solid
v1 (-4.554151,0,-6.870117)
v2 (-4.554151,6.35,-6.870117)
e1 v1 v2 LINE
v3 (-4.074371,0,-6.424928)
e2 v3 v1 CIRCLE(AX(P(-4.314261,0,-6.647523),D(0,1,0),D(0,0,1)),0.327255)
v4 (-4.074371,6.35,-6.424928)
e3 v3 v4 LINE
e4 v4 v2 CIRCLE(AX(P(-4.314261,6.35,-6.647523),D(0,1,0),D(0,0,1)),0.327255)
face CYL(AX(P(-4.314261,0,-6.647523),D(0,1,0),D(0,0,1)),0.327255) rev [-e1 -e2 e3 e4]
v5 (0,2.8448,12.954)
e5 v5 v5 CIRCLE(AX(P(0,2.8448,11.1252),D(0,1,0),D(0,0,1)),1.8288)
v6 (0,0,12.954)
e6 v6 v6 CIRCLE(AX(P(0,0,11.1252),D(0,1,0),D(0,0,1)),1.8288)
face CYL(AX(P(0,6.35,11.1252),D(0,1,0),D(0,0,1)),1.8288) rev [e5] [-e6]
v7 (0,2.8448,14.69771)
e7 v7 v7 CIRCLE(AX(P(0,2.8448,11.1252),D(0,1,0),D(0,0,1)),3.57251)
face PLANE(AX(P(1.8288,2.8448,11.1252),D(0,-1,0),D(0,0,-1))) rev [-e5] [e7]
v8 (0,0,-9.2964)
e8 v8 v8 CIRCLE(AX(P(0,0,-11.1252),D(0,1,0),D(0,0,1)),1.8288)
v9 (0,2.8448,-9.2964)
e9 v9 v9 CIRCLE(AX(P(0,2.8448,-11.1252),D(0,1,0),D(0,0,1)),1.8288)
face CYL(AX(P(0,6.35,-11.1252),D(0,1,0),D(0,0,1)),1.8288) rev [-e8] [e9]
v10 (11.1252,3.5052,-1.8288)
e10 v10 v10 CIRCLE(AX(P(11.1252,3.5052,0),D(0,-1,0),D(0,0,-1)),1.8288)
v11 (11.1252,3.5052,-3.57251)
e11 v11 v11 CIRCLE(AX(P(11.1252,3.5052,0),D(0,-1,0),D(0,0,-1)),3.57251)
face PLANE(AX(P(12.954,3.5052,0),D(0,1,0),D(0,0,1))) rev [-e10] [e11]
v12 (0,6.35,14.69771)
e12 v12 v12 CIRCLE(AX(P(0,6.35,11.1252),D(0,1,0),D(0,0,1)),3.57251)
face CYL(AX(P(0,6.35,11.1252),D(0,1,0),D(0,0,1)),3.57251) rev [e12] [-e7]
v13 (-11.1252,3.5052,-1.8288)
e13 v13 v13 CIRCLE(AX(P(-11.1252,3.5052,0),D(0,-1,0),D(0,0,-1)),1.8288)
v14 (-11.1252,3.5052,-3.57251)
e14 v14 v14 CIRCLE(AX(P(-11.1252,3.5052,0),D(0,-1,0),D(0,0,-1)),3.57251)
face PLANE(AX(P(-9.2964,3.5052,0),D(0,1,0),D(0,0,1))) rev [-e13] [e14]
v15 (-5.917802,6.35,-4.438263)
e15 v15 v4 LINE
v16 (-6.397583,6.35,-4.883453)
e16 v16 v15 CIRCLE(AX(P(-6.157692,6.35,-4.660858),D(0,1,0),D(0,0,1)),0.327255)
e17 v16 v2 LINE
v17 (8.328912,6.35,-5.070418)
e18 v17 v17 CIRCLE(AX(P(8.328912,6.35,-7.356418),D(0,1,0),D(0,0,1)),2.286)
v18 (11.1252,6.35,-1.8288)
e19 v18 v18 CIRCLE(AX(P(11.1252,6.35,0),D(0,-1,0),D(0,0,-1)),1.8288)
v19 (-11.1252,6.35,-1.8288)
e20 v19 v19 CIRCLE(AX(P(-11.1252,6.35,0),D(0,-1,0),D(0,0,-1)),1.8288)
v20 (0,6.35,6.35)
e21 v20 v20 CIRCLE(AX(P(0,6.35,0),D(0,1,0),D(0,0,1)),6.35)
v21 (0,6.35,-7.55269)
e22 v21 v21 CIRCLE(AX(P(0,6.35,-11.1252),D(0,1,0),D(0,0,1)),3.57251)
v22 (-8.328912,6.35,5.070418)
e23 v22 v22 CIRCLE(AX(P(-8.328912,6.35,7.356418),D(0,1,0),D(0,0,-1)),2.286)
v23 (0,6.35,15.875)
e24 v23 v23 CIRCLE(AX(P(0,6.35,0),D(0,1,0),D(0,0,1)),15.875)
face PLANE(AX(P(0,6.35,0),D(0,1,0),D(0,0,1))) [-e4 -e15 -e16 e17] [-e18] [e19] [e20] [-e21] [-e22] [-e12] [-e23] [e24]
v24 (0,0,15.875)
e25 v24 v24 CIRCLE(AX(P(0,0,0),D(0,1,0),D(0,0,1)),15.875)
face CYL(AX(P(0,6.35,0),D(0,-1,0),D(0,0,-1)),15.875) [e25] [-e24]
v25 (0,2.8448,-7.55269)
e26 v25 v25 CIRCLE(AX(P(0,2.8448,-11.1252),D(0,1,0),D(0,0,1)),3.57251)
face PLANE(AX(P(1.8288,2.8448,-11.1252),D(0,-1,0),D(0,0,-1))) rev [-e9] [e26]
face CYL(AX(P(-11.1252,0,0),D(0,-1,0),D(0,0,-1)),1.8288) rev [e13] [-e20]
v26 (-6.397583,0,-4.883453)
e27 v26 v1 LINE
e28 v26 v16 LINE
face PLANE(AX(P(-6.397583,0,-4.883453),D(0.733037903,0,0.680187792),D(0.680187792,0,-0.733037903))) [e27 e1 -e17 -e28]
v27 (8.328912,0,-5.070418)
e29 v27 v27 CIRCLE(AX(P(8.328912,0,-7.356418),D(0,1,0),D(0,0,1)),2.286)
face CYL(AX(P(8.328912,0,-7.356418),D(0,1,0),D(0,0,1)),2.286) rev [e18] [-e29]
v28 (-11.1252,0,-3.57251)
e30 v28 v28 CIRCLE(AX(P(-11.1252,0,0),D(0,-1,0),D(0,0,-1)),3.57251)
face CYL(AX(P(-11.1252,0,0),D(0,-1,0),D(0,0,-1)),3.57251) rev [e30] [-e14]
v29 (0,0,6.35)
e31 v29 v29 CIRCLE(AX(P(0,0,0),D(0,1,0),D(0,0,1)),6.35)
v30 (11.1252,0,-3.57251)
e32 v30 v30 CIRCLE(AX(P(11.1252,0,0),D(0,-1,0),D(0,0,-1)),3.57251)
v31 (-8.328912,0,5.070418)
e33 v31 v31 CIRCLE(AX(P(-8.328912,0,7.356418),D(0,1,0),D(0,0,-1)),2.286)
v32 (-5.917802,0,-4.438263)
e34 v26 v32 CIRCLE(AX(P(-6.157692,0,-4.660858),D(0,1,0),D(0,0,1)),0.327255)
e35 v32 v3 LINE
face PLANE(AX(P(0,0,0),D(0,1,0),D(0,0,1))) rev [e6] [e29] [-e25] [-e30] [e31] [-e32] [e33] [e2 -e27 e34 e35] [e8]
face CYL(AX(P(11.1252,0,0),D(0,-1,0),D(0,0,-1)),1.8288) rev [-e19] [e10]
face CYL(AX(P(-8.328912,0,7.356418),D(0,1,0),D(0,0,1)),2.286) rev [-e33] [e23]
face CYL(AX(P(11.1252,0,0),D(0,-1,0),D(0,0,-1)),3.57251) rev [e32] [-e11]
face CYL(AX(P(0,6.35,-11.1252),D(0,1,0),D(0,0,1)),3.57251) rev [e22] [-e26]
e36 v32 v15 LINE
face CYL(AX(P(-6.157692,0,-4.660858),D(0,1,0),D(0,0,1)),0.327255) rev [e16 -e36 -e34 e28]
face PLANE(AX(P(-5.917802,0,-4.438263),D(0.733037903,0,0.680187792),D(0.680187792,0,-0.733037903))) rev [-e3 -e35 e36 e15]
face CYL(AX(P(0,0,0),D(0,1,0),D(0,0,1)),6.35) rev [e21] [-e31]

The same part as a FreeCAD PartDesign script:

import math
import FreeCAD as App
import Part
import Sketcher

V = App.Vector
Q = App.Units.Quantity

doc = App.newDocument("Part")
params = doc.addObject("Spreadsheet::Sheet", "Params")
for row, (alias, value) in enumerate([
    ("sketch1_diameter", "1.25 in"),
    ("pad1_length", "0.25 in"),
    ("sketch2_diameter", "0.5 in"),
    ("sketch3_diameter", "0.18 in"),
    ("sketch5_diameter", "0.144 in"),
    ("hole_diameter", "0.144 in"),
    ("hole_cbore_diameter", "0.2813 in"),
    ("hole_cbore_depth", "0.138 in"),
    ("sketch6_diameter", "0.144 in"),
    ("hole2_diameter", "0.144 in"),
    ("hole2_cbore_diameter", "0.2813 in"),
    ("hole2_cbore_depth", "0.138 in"),
], start=1):
    params.set(f"A{row}", alias)
    params.set(f"B{row}", "=" + value)
    params.setAlias(f"B{row}", alias)

body = doc.addObject("PartDesign::Body", "Body")

# Sketch on XZ plane
sketch1 = doc.addObject("Sketcher::SketchObject", "Sketch")
body.addObject(sketch1)
sketch1.AttachmentSupport = (doc.XZ_Plane, [""])
sketch1.MapMode = "FlatFace"
sketch1.addGeometry(Part.Circle(V(0, 0, 0), V(0, 0, 1), 15.875), False)
sketch1.addConstraint(Sketcher.Constraint("Coincident", 0, 3, -1, 1))
sketch1.addConstraint(Sketcher.Constraint("Diameter", 0, Q("1.25 in")))
sketch1.setExpression("Constraints[1]", "Params.sketch1_diameter")
pad1 = doc.addObject("PartDesign::Pad", "Pad")
body.addObject(pad1)
pad1.Profile = sketch1
pad1.setExpression("Length", "Params.pad1_length")
pad1.Reversed = True

# Sketch on XZ plane
sketch2 = doc.addObject("Sketcher::SketchObject", "Sketch001")
body.addObject(sketch2)
sketch2.AttachmentSupport = (doc.XZ_Plane, [""])
sketch2.MapMode = "FlatFace"
sketch2.AttachmentOffset = App.Placement(V(0, 0, -0.25 * 25.4), App.Rotation())
sketch2.addGeometry(Part.Circle(V(0, 0, 0), V(0, 0, 1), 6.35), False)
sketch2.addConstraint(Sketcher.Constraint("Coincident", 0, 3, -1, 1))
sketch2.addConstraint(Sketcher.Constraint("Diameter", 0, Q("0.5 in")))
sketch2.setExpression("Constraints[1]", "Params.sketch2_diameter")
pocket1 = doc.addObject("PartDesign::Pocket", "Pocket")
body.addObject(pocket1)
pocket1.Profile = sketch2
pocket1.Type = "ThroughAll"
pocket1.Reversed = True

# Sketch on XZ plane
sketch3 = doc.addObject("Sketcher::SketchObject", "Sketch002")
body.addObject(sketch3)
sketch3.AttachmentSupport = (doc.XZ_Plane, [""])
sketch3.MapMode = "FlatFace"
sketch3.AttachmentOffset = App.Placement(V(0, 0, -0.25 * 25.4), App.Rotation())
sketch3.addGeometry(Part.Circle(V(8.328912, -7.356418, 0), V(0, 0, 1), 2.286), False)
sketch3.addConstraint(Sketcher.Constraint("Diameter", 0, Q("0.18 in")))
sketch3.addConstraint(Sketcher.Constraint("DistanceX", -1, 1, 0, 3, 8.328912))
sketch3.addConstraint(Sketcher.Constraint("DistanceY", 0, 3, -1, 1, 7.356418))
sketch3.setExpression("Constraints[0]", "Params.sketch3_diameter")
pocket2 = doc.addObject("PartDesign::Pocket", "Pocket001")
body.addObject(pocket2)
pocket2.Profile = sketch3
pocket2.Type = "ThroughAll"
pocket2.Reversed = True
doc.recompute()

polarpattern = doc.addObject("PartDesign::PolarPattern", "PolarPattern")
body.addObject(polarpattern)
polarpattern.Originals = [pocket2]
polarpattern.Axis = (doc.Y_Axis, [""])
polarpattern.Angle = 360
polarpattern.Occurrences = 2
body.Tip = polarpattern

# Sketch on XZ plane
sketch4 = doc.addObject("Sketcher::SketchObject", "Sketch003")
body.addObject(sketch4)
sketch4.AttachmentSupport = (doc.XZ_Plane, [""])
sketch4.MapMode = "FlatFace"
sketch4.AttachmentOffset = App.Placement(V(0, 0, -0.25 * 25.4), App.Rotation())
sketch4.addGeometry(Part.LineSegment(V(-4.554151, -6.870117, 0), V(-6.397583, -4.883453, 0)), False)
sketch4.addGeometry(Part.ArcOfCircle(Part.Circle(V(-6.157692, -4.660858, 0), V(0, 0, 1), 0.327255), math.radians(42.85832), math.radians(222.858319)), False)
sketch4.addGeometry(Part.LineSegment(V(-5.917802, -4.438263, 0), V(-4.074371, -6.424928, 0)), False)
sketch4.addGeometry(Part.ArcOfCircle(Part.Circle(V(-4.314261, -6.647523, 0), V(0, 0, 1), 0.327255), math.radians(-137.14168), math.radians(42.858319)), False)
sketch4.addConstraint(Sketcher.Constraint("Tangent", 0, 2, 1, 2))
sketch4.addConstraint(Sketcher.Constraint("Tangent", 1, 1, 2, 1))
sketch4.addConstraint(Sketcher.Constraint("Tangent", 2, 2, 3, 2))
sketch4.addConstraint(Sketcher.Constraint("Tangent", 3, 1, 0, 1))
sketch4.addConstraint(Sketcher.Constraint("Equal", 1, 3))
sketch4.addConstraint(Sketcher.Constraint("Distance", 0, Q("0.1067 in")))
sketch4.addConstraint(Sketcher.Constraint("Radius", 1, 0.327255))
sketch4.addConstraint(Sketcher.Constraint("DistanceX", 3, 3, -1, 1, 4.314261))
sketch4.addConstraint(Sketcher.Constraint("DistanceX", 2, 2, -1, 1, 4.074371))
sketch4.addConstraint(Sketcher.Constraint("DistanceY", 1, 3, -1, 1, 4.660858))
pocket3 = doc.addObject("PartDesign::Pocket", "Pocket002")
body.addObject(pocket3)
pocket3.Profile = sketch4
pocket3.Type = "ThroughAll"
pocket3.Reversed = True

# Sketch on XZ plane
sketch5 = doc.addObject("Sketcher::SketchObject", "Sketch004")
body.addObject(sketch5)
sketch5.AttachmentSupport = (doc.XZ_Plane, [""])
sketch5.MapMode = "FlatFace"
sketch5.addGeometry(Part.Circle(V(11.1252, 0, 0), V(0, 0, 1), 1.8288), False)
sketch5.addConstraint(Sketcher.Constraint("PointOnObject", 0, 3, -1))
sketch5.addConstraint(Sketcher.Constraint("Diameter", 0, Q("0.144 in")))
sketch5.addConstraint(Sketcher.Constraint("DistanceX", -1, 1, 0, 3, Q("0.438 in")))
sketch5.setExpression("Constraints[1]", "Params.sketch5_diameter")
doc.recompute()
hole = doc.addObject("PartDesign::Hole", "Hole")
body.addObject(hole)
hole.Profile = sketch5
hole.ThreadType = "None"
hole.setExpression("Diameter", "Params.hole_diameter")
hole.DepthType = "ThroughAll"
hole.HoleCutType = "Counterbore"
hole.setExpression("HoleCutDiameter", "Params.hole_cbore_diameter")
hole.setExpression("HoleCutDepth", "Params.hole_cbore_depth")

# Sketch on XZ plane
sketch6 = doc.addObject("Sketcher::SketchObject", "Sketch005")
body.addObject(sketch6)
sketch6.AttachmentSupport = (doc.XZ_Plane, [""])
sketch6.MapMode = "FlatFace"
sketch6.AttachmentOffset = App.Placement(V(0, 0, -0.25 * 25.4), App.Rotation())
sketch6.addGeometry(Part.Circle(V(0, -11.1252, 0), V(0, 0, 1), 1.8288), False)
sketch6.addConstraint(Sketcher.Constraint("PointOnObject", 0, 3, -2))
sketch6.addConstraint(Sketcher.Constraint("Diameter", 0, Q("0.144 in")))
sketch6.addConstraint(Sketcher.Constraint("DistanceY", 0, 3, -1, 1, Q("0.438 in")))
sketch6.setExpression("Constraints[1]", "Params.sketch6_diameter")
doc.recompute()
hole2 = doc.addObject("PartDesign::Hole", "Hole001")
body.addObject(hole2)
hole2.Profile = sketch6
hole2.ThreadType = "None"
hole2.setExpression("Diameter", "Params.hole2_diameter")
hole2.DepthType = "ThroughAll"
hole2.HoleCutType = "Counterbore"
hole2.setExpression("HoleCutDiameter", "Params.hole2_cbore_diameter")
hole2.setExpression("HoleCutDepth", "Params.hole2_cbore_depth")
hole2.Reversed = True
doc.recompute()

polarpattern2 = doc.addObject("PartDesign::PolarPattern", "PolarPattern001")
body.addObject(polarpattern2)
polarpattern2.Originals = [hole2]
polarpattern2.Axis = (doc.Y_Axis, [""])
polarpattern2.Angle = 360
polarpattern2.Occurrences = 2
body.Tip = polarpattern2
doc.recompute()

polarpattern3 = doc.addObject("PartDesign::PolarPattern", "PolarPattern002")
body.addObject(polarpattern3)
polarpattern3.Originals = [hole]
polarpattern3.Axis = (doc.Y_Axis, [""])
polarpattern3.Angle = 360
polarpattern3.Occurrences = 2
body.Tip = polarpattern3

doc.recompute()
